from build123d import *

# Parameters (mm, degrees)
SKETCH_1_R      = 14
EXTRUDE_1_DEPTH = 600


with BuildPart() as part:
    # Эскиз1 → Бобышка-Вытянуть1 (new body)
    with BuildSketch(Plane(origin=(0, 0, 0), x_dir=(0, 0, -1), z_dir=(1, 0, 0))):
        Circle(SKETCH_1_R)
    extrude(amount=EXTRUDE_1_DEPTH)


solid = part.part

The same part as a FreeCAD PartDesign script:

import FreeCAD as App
import Part
import Sketcher

doc = App.newDocument("Part")
params = doc.addObject("Spreadsheet::Sheet", "Params")
for row, (alias, value) in enumerate([
    ("sketch1_diameter", "28 mm"),
    ("pad1_length", "600 mm"),
], start=1):
    params.set(f"A{row}", alias)
    params.set(f"B{row}", "=" + value)
    params.setAlias(f"B{row}", alias)

body = doc.addObject("PartDesign::Body", "Body")

sketch1 = body.newObject("Sketcher::SketchObject", "Sketch")
sketch1.AttachmentSupport = (doc.getObject("YZ_Plane"), [""])
sketch1.MapMode = "FlatFace"
sketch1.addGeometry(Part.Circle(App.Vector(0, 0, 0), App.Vector(0, 0, 1), 14), False)
sketch1.addConstraint(Sketcher.Constraint("Coincident", 0, 3, -1, 1))
sketch1.addConstraint(Sketcher.Constraint("Diameter", 0, 28.0))
sketch1.setExpression("Constraints[1]", "Params.sketch1_diameter")
pad1 = body.newObject("PartDesign::Pad", "Pad")
pad1.Profile = sketch1
pad1.setExpression("Length", "Params.pad1_length")

doc.recompute()
